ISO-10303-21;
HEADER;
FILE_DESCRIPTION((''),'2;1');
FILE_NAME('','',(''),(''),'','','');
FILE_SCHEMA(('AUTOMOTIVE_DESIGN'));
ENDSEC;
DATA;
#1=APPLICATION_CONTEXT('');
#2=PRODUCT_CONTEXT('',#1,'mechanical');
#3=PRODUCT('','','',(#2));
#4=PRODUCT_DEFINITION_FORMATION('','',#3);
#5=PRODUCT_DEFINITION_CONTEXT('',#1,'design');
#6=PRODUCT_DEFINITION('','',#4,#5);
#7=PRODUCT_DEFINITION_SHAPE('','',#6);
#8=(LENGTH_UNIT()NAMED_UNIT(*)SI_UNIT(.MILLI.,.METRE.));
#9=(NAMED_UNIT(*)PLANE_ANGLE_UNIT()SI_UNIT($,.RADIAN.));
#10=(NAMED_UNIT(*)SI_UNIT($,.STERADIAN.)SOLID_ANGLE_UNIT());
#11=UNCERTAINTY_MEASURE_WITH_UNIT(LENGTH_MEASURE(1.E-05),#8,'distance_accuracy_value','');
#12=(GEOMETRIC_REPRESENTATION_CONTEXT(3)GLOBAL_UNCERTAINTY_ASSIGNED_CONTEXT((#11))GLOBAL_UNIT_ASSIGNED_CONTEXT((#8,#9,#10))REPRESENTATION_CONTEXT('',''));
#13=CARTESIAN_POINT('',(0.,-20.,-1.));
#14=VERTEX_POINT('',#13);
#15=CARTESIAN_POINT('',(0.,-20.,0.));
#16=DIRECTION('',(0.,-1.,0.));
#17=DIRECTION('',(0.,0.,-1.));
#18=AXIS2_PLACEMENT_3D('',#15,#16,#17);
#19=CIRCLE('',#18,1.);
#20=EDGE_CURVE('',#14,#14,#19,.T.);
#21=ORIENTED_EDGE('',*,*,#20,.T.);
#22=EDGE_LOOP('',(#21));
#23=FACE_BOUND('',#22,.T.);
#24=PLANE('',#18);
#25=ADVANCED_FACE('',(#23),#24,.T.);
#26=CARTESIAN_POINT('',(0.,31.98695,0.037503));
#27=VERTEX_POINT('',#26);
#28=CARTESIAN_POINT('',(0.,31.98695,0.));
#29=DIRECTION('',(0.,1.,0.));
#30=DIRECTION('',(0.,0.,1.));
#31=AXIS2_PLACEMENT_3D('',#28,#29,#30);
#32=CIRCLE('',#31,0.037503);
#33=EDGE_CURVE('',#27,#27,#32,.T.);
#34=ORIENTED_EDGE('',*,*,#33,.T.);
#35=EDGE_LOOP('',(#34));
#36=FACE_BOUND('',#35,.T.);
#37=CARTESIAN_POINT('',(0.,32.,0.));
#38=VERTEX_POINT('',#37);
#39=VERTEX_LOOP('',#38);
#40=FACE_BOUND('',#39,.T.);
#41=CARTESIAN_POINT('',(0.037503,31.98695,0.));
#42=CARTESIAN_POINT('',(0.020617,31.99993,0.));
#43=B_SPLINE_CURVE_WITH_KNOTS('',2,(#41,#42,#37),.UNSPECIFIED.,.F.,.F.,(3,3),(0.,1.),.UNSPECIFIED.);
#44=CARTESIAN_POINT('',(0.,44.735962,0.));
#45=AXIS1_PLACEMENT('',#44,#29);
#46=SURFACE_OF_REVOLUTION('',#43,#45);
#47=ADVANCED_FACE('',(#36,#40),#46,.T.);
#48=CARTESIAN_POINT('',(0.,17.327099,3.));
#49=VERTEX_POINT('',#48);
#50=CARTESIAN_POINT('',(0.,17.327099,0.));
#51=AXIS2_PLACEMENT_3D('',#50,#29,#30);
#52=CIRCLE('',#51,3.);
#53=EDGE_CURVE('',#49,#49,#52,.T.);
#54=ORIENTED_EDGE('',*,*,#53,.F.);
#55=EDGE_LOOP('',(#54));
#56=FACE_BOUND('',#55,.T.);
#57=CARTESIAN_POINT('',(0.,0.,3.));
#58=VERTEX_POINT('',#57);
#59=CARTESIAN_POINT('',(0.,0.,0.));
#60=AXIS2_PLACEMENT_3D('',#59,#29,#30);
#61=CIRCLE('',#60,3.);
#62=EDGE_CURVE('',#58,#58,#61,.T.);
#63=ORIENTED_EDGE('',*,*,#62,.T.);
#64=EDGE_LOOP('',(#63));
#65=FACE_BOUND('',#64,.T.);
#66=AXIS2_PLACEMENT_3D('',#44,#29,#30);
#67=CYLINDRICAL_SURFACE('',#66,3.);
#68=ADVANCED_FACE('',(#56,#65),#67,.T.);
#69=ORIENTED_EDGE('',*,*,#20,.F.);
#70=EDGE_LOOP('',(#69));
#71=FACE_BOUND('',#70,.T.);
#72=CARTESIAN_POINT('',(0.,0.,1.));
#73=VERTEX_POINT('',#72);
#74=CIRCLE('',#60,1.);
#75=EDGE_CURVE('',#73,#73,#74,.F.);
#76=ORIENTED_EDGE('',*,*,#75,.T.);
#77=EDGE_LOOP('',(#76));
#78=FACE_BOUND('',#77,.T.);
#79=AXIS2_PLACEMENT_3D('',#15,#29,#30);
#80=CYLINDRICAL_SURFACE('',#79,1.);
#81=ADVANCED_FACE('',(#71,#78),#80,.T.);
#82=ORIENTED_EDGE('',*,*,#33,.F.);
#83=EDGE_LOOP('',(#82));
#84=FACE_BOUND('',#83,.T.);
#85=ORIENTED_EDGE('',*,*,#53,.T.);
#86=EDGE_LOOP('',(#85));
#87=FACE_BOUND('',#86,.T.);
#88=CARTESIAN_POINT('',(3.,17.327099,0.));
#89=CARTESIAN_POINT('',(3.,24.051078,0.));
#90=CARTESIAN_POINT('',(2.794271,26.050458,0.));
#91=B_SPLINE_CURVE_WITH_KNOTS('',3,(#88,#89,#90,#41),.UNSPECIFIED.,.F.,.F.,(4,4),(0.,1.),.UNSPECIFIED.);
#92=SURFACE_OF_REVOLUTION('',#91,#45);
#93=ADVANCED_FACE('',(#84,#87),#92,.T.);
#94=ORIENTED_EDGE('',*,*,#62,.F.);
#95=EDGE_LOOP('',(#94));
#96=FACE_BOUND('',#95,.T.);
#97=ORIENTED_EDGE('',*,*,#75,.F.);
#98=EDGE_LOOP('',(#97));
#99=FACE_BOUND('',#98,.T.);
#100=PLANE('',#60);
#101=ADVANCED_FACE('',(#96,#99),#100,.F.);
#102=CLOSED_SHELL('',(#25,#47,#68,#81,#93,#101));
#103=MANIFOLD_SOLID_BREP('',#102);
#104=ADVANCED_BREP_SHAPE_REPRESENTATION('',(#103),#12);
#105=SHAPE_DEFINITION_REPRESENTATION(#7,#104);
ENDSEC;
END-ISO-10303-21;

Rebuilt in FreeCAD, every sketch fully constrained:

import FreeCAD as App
import Part
import Sketcher
from FreeCAD import Vector
Q = App.Units.Quantity

doc = App.newDocument("Part")
body = doc.addObject("PartDesign::Body", "Body")

sketch1 = doc.addObject("Sketcher::SketchObject", "Sketch")
body.addObject(sketch1)
sketch1.AttachmentSupport = (doc.XY_Plane, [""])
sketch1.MapMode = "FlatFace"
sketch1.addGeometry([
    Part.LineSegment(Vector(0, 0, 0), Vector(3, 0, 0)),
    Part.LineSegment(Vector(3, 0, 0), Vector(3, 17.327099, 0)),
    Part.BSplineCurve([Vector(0.037503, 31.98695, 0), Vector(2.794271, 26.050458, 0), Vector(3, 24.051078, 0), Vector(3, 17.327099, 0)], [4, 4], [0, 1], False, 3, [1, 1, 1, 1], False),
    Part.BSplineCurve([Vector(0, 32, 0), Vector(0.020617, 31.99993, 0), Vector(0.037503, 31.98695, 0)], [3, 3], [0, 1], False, 2, [1, 1, 1], False),
    Part.LineSegment(Vector(0, 32, 0), Vector(0, 0, 0)),
], False)
sketch1.addConstraint([
    Sketcher.Constraint("Block", 2),
    Sketcher.Constraint("Block", 3),
    Sketcher.Constraint("Coincident", 0, 2, 1, 1),
    Sketcher.Constraint("Coincident", 1, 2, 2, 2),
    Sketcher.Constraint("Coincident", 3, 1, 4, 1),
    Sketcher.Constraint("Coincident", 4, 2, 0, 1),
    Sketcher.Constraint("Horizontal", 0),
    Sketcher.Constraint("Vertical", 1),
    Sketcher.Constraint("Vertical", 4),
    Sketcher.Constraint("PointOnObject", 0, 2, -1),
])
revolution = doc.addObject("PartDesign::Revolution", "Revolution")
body.addObject(revolution)
revolution.Profile = sketch1
revolution.ReferenceAxis = (sketch1, ["V_Axis"])
revolution.Angle = 360

sketch2 = doc.addObject("Sketcher::SketchObject", "Sketch001")
body.addObject(sketch2)
sketch2.AttachmentSupport = (doc.XZ_Plane, [""])
sketch2.MapMode = "FlatFace"
sketch2.addGeometry(Part.Circle(Vector(0, 0, 0), Vector(0, 0, 1), 1), False)
sketch2.addConstraint([
    Sketcher.Constraint("Coincident", 0, 3, -1, 1),
    Sketcher.Constraint("Diameter", 0, Q("2 mm")),
])
pad1 = doc.addObject("PartDesign::Pad", "Pad")
body.addObject(pad1)
pad1.Profile = sketch2
pad1.Length = 20

doc.recompute()
